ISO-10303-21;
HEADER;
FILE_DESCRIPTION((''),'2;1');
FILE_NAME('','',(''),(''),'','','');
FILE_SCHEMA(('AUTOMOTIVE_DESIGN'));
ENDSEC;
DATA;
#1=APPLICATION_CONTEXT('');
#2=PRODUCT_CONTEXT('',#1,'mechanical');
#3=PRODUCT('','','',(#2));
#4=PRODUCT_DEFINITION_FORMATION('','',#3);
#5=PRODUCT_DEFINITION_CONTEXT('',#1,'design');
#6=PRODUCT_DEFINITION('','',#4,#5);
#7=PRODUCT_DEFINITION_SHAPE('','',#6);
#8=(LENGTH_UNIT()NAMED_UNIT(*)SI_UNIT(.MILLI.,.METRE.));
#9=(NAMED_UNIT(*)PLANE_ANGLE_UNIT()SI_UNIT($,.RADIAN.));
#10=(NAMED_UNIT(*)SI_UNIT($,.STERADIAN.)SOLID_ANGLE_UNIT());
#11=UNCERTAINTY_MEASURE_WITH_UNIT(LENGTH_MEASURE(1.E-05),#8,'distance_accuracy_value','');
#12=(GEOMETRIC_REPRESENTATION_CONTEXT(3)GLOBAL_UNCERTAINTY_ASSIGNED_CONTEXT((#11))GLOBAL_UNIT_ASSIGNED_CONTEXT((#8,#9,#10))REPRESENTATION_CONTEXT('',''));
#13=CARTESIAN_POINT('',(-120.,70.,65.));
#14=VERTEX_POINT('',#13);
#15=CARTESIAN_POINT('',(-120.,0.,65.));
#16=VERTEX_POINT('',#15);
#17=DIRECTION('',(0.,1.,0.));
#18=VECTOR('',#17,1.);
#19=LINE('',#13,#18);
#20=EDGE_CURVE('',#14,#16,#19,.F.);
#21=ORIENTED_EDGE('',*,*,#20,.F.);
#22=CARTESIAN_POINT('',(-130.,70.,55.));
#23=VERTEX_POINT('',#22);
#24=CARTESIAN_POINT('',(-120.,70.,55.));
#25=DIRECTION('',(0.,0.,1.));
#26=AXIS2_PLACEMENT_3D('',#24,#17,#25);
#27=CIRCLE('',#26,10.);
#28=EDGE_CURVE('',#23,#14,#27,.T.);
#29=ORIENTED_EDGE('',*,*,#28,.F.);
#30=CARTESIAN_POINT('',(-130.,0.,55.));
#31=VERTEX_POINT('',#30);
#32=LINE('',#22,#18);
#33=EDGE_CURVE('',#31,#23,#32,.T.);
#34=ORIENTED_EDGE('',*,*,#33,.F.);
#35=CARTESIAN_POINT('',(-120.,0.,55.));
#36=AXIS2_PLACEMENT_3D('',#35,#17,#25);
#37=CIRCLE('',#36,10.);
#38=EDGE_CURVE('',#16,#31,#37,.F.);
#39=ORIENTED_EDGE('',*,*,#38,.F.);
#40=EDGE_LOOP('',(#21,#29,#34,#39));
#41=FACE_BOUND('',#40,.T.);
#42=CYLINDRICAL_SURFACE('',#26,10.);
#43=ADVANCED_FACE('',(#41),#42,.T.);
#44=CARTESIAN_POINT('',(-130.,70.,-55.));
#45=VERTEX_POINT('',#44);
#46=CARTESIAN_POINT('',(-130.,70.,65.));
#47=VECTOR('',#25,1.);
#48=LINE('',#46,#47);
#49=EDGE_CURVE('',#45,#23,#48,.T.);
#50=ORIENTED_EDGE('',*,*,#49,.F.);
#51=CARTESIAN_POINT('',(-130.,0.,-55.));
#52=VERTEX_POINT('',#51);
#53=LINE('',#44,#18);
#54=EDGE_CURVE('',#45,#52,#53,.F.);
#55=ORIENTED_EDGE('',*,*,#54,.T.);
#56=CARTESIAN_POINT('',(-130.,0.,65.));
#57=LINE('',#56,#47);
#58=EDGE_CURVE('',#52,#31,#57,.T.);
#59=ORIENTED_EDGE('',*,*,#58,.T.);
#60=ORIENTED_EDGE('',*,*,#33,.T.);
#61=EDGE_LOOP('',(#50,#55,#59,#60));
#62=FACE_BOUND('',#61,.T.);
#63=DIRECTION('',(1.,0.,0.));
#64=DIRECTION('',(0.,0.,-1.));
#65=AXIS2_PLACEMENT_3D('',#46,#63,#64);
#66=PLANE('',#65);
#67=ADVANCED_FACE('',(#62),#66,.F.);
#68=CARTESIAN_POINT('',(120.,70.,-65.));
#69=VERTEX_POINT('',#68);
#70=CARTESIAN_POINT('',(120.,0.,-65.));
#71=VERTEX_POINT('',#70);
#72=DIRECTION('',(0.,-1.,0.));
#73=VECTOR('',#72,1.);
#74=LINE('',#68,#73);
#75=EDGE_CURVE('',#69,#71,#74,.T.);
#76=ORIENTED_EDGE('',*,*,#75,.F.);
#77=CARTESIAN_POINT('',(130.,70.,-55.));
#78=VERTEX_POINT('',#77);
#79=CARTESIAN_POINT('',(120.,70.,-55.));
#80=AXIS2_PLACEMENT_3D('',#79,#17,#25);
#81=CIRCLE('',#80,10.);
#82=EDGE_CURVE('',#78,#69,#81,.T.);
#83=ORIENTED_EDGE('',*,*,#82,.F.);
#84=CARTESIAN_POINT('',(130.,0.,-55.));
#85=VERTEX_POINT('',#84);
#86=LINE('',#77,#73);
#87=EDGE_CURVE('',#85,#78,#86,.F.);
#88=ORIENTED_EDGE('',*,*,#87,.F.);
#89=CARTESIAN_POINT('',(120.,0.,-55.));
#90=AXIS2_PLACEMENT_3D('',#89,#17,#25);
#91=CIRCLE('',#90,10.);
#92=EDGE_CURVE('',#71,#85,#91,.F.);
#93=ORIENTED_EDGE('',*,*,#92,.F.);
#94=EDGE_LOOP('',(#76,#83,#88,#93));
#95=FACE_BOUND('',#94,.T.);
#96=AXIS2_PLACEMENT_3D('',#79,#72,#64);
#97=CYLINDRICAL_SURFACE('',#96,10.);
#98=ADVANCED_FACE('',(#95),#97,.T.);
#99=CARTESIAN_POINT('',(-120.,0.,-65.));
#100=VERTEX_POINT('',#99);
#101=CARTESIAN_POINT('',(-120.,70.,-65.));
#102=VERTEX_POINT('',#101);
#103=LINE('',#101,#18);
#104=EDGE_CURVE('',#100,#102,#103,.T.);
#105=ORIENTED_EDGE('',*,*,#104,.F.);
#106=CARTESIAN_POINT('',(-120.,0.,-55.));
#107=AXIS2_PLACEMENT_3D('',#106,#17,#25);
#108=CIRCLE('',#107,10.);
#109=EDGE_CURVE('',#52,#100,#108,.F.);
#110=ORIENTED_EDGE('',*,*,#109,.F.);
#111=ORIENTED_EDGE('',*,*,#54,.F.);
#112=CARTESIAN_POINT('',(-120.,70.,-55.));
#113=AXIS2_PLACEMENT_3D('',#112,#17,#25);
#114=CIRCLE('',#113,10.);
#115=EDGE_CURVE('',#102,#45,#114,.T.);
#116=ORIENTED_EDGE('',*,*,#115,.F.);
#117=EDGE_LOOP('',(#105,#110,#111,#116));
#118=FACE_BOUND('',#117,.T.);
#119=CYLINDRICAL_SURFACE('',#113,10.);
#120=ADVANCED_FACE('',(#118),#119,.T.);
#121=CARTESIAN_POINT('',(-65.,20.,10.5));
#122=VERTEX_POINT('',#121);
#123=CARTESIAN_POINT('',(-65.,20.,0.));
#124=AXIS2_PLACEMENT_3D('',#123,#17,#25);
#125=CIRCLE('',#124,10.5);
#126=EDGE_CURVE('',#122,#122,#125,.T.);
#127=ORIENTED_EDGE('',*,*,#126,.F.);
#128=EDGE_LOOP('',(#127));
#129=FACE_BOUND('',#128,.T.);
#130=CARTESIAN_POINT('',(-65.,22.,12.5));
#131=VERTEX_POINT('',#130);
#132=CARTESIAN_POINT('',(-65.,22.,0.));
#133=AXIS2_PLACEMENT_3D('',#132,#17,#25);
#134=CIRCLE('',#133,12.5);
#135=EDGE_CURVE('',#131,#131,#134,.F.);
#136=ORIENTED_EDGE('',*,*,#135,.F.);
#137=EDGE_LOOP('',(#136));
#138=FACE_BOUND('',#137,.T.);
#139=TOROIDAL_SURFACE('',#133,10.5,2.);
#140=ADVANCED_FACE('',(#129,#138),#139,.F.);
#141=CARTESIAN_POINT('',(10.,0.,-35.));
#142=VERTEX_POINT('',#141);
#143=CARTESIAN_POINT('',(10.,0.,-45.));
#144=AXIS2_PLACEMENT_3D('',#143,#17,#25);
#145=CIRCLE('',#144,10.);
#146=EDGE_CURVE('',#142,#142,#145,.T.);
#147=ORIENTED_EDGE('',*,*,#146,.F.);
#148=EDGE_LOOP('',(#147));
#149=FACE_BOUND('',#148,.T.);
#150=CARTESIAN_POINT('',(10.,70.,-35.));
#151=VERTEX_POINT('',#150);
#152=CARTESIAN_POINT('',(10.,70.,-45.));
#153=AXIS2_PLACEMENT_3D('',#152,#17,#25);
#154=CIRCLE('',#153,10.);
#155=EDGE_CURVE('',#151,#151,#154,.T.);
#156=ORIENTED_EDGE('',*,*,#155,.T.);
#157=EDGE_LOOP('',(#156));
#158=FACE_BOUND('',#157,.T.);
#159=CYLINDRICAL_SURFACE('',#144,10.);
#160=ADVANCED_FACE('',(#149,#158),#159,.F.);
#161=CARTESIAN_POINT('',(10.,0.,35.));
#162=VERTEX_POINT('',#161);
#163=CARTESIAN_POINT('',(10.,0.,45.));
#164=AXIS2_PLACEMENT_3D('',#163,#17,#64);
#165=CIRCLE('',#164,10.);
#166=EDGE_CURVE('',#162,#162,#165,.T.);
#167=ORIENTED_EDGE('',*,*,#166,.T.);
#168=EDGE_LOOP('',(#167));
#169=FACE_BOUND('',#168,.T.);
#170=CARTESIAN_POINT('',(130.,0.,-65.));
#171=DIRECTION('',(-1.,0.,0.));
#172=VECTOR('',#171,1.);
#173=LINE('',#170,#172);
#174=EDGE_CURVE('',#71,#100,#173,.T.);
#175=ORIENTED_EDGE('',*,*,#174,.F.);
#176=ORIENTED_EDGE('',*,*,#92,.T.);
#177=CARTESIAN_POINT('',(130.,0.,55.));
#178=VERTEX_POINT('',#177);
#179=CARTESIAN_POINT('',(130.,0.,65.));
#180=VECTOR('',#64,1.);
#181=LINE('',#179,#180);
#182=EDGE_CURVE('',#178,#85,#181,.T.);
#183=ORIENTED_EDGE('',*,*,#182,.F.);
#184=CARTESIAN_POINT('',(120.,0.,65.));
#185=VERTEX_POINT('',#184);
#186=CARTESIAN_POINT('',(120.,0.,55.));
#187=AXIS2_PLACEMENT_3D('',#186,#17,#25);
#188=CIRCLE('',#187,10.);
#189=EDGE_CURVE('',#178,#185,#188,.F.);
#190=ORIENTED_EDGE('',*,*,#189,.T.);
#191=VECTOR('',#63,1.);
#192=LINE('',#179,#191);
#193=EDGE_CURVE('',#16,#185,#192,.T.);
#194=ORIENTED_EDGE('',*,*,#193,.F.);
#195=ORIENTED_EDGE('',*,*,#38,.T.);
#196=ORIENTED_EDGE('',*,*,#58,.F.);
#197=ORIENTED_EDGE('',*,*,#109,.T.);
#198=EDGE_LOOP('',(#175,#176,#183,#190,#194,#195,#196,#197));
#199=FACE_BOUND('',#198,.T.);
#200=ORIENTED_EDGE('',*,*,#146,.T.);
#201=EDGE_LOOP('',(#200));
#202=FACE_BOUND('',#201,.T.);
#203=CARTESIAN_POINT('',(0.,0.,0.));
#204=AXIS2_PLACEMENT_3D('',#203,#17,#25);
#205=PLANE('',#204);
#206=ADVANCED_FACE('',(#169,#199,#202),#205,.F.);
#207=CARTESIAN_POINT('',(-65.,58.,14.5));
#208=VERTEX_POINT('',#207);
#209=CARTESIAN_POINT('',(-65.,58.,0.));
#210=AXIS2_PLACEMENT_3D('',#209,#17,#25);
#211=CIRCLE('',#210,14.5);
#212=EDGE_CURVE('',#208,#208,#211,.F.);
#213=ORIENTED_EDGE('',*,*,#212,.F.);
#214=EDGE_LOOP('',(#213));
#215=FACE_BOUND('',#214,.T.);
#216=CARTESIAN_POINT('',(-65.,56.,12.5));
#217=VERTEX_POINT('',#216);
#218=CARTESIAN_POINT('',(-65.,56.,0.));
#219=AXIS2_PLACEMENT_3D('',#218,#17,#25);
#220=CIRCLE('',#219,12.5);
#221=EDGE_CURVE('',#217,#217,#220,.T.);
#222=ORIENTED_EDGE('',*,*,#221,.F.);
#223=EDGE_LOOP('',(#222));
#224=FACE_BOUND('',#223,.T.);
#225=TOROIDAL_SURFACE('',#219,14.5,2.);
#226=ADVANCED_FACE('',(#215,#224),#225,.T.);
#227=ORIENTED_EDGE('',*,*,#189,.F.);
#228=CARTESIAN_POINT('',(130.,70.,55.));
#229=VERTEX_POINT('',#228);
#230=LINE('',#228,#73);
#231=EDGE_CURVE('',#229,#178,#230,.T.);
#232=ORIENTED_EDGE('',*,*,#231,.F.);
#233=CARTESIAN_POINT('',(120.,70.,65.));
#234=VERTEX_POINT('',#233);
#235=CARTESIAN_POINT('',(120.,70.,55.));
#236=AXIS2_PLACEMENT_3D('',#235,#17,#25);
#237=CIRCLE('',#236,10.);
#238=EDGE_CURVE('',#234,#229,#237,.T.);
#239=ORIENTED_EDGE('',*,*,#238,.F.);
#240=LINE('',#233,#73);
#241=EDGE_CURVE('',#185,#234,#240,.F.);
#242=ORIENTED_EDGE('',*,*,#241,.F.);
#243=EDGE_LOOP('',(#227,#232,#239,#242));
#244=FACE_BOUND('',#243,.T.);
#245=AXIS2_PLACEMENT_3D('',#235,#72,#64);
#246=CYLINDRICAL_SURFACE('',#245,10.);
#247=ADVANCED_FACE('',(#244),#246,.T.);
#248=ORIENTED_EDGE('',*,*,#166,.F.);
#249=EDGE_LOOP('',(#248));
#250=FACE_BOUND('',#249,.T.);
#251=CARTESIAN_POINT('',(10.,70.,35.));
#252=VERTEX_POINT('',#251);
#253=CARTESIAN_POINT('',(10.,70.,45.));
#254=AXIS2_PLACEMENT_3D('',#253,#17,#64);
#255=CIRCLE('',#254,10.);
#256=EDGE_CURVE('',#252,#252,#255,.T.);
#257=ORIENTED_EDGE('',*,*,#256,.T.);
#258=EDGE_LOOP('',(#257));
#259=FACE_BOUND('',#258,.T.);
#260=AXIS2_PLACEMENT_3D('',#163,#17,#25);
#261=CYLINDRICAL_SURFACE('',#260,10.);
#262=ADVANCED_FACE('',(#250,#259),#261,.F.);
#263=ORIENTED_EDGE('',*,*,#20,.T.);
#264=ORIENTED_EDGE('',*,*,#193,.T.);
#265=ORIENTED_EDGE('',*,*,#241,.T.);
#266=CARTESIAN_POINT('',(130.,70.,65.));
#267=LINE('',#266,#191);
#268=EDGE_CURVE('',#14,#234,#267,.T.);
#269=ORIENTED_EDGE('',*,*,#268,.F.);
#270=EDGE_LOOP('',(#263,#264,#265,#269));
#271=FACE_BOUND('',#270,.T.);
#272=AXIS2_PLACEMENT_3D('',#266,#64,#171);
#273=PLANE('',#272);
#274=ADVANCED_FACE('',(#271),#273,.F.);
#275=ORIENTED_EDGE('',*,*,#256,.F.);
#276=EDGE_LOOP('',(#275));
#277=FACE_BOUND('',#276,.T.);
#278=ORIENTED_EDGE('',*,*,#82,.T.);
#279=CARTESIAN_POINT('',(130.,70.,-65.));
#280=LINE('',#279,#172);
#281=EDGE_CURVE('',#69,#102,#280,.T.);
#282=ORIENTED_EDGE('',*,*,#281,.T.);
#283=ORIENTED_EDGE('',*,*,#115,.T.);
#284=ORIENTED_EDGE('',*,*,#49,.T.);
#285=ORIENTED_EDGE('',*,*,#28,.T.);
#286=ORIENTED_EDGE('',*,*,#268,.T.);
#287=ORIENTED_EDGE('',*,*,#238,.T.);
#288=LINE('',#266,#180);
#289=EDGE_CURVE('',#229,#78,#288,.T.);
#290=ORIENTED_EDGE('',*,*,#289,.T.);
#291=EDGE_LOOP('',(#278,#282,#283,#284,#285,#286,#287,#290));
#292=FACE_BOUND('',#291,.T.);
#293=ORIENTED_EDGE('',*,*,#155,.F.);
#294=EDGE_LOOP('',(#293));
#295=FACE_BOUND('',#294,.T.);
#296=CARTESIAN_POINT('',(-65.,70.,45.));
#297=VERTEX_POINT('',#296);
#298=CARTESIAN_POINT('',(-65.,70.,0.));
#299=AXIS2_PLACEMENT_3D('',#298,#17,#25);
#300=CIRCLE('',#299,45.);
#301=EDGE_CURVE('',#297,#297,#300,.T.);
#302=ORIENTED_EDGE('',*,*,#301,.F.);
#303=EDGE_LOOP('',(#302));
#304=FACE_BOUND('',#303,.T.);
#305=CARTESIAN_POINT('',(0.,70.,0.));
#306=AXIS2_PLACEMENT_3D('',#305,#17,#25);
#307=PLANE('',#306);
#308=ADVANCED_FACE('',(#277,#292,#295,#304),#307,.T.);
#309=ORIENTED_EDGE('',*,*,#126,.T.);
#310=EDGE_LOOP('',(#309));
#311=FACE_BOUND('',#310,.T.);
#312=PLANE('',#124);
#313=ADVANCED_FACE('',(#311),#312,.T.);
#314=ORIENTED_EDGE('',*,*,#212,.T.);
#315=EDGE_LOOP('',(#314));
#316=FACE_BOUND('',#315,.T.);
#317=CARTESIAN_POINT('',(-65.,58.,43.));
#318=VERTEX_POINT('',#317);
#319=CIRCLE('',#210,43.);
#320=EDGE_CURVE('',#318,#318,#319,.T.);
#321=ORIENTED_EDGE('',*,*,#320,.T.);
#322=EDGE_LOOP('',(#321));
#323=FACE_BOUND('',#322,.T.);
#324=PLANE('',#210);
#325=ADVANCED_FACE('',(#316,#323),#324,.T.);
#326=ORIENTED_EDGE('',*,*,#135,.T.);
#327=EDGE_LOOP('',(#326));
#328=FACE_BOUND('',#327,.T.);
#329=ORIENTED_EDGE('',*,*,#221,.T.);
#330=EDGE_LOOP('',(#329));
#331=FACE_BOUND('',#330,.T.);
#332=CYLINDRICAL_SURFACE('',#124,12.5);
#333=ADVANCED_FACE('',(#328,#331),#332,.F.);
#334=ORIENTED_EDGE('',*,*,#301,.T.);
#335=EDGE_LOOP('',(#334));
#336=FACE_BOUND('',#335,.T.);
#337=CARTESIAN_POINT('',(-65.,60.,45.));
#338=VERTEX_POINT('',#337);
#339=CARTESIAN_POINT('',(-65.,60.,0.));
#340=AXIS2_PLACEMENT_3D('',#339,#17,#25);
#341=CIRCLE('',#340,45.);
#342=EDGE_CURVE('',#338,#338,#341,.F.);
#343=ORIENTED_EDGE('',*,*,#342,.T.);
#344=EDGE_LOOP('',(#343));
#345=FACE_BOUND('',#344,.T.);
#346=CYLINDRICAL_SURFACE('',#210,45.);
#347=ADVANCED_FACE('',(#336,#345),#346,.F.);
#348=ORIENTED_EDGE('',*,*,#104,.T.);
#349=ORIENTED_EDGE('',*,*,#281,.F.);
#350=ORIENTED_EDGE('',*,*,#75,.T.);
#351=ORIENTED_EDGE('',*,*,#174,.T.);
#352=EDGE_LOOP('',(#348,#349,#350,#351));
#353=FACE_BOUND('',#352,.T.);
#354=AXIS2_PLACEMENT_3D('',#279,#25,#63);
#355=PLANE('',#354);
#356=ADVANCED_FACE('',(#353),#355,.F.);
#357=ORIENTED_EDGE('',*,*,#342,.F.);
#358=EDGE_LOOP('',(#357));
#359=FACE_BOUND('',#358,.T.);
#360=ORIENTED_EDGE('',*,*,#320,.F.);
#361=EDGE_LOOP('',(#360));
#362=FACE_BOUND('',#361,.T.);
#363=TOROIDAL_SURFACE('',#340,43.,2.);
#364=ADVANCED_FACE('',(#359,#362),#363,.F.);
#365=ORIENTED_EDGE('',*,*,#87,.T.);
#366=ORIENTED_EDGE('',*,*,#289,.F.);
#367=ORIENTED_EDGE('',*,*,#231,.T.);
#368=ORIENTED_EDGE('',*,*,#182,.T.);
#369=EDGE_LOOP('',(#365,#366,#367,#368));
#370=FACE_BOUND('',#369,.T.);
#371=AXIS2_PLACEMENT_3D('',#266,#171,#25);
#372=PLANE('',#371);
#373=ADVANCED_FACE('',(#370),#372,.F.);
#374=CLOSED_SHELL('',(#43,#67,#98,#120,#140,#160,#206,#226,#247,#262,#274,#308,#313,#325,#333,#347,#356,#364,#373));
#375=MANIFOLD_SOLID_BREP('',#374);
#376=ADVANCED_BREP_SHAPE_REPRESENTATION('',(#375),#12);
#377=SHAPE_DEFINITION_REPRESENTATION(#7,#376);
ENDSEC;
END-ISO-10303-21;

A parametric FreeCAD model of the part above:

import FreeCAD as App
import Part
import Sketcher


def edges_at(feature, points):
    """Names of the edges that pass closest to the given points."""
    edges = feature.Shape.Edges
    near = lambda p: min(range(len(edges)), key=lambda i: edges[i].distToShape(Part.Vertex(*p))[0])
    return sorted({f"Edge{near(p) + 1}" for p in points})

doc = App.newDocument("Part")
body = doc.addObject("PartDesign::Body", "Body")

sketch1 = body.newObject("Sketcher::SketchObject", "Sketch")
sketch1.AttachmentSupport = (doc.getObject("XZ_Plane"), [""])
sketch1.MapMode = "FlatFace"
sketch1.addGeometry([
    Part.LineSegment(App.Vector(-130, -65, 0), App.Vector(-130, 65, 0)),
    Part.LineSegment(App.Vector(-130, 65, 0), App.Vector(130, 65, 0)),
    Part.LineSegment(App.Vector(130, 65, 0), App.Vector(130, -65, 0)),
    Part.LineSegment(App.Vector(130, -65, 0), App.Vector(-130, -65, 0)),
], False)
sketch1.addConstraint([
    Sketcher.Constraint("Coincident", 0, 2, 1, 1),
    Sketcher.Constraint("Coincident", 1, 2, 2, 1),
    Sketcher.Constraint("Coincident", 2, 2, 3, 1),
    Sketcher.Constraint("Coincident", 3, 2, 0, 1),
    Sketcher.Constraint("Vertical", 0),
    Sketcher.Constraint("Horizontal", 1),
    Sketcher.Constraint("Vertical", 2),
    Sketcher.Constraint("Horizontal", 3),
    Sketcher.Constraint("Symmetric", 0, 2, 2, 2, -1, 1),
    Sketcher.Constraint("DistanceX", 1, 1, 1, 2, 260.0),
    Sketcher.Constraint("DistanceY", 0, 1, 0, 2, 130.0),
])
pad1 = body.newObject("PartDesign::Pad", "Pad")
pad1.Profile = sketch1
pad1.Length = 70
pad1.Reversed = True

sketch2 = body.newObject("Sketcher::SketchObject", "Sketch001")
sketch2.AttachmentSupport = (doc.getObject("XZ_Plane"), [""])
sketch2.MapMode = "FlatFace"
sketch2.AttachmentOffset = App.Placement(App.Vector(0, 0, -70), App.Rotation())
sketch2.addGeometry(Part.Circle(App.Vector(-65, 0, 0), App.Vector(0, 0, 1), 45), False)
sketch2.addConstraint([
    Sketcher.Constraint("PointOnObject", 0, 3, -1),
    Sketcher.Constraint("Diameter", 0, 90.0),
    Sketcher.Constraint("DistanceX", 0, 3, -1, 1, 65.0),
])
pocket1 = body.newObject("PartDesign::Pocket", "Pocket")
pocket1.Profile = sketch2
pocket1.Length = 12
pocket1.Reversed = True
doc.recompute()

fillet = body.newObject("PartDesign::Fillet", "Fillet")
fillet.Base = (pocket1, edges_at(pocket1, [(-110, 58, 0)]))
fillet.Radius = 2

sketch3 = body.newObject("Sketcher::SketchObject", "Sketch002")
sketch3.AttachmentSupport = (doc.getObject("XZ_Plane"), [""])
sketch3.MapMode = "FlatFace"
sketch3.AttachmentOffset = App.Placement(App.Vector(0, 0, -58), App.Rotation())
sketch3.addGeometry(Part.Circle(App.Vector(-65, 0, 0), App.Vector(0, 0, 1), 12), False)
sketch3.addConstraint([
    Sketcher.Constraint("PointOnObject", 0, 3, -1),
    Sketcher.Constraint("Diameter", 0, 25.0),
    Sketcher.Constraint("DistanceX", 0, 3, -1, 1, 65.0),
])
pocket2 = body.newObject("PartDesign::Pocket", "Pocket001")
pocket2.Profile = sketch3
pocket2.Length = 38
pocket2.Reversed = True
doc.recompute()

fillet2 = body.newObject("PartDesign::Fillet", "Fillet001")
fillet2.Base = (pocket2, edges_at(pocket2, [(-77.5, 58, 0)]))
fillet2.Radius = 2
doc.recompute()

fillet3 = body.newObject("PartDesign::Fillet", "Fillet002")
fillet3.Base = (fillet2, edges_at(fillet2, [(-77.5, 20, 0)]))
fillet3.Radius = 2
doc.recompute()

fillet4 = body.newObject("PartDesign::Fillet", "Fillet003")
fillet4.Base = (fillet3, edges_at(fillet3, [(-130, 35, -65)]))
fillet4.Radius = 10
doc.recompute()

fillet5 = body.newObject("PartDesign::Fillet", "Fillet004")
fillet5.Base = (fillet4, edges_at(fillet4, [(-130, 35, 65)]))
fillet5.Radius = 10
doc.recompute()

fillet6 = body.newObject("PartDesign::Fillet", "Fillet005")
fillet6.Base = (fillet5, edges_at(fillet5, [(130, 35, 65)]))
fillet6.Radius = 10
doc.recompute()

fillet7 = body.newObject("PartDesign::Fillet", "Fillet006")
fillet7.Base = (fillet6, edges_at(fillet6, [(130, 35, -65)]))
fillet7.Radius = 10

sketch4 = body.newObject("Sketcher::SketchObject", "Sketch003")
sketch4.AttachmentSupport = (doc.getObject("XZ_Plane"), [""])
sketch4.MapMode = "FlatFace"
sketch4.AttachmentOffset = App.Placement(App.Vector(0, 0, -70), App.Rotation())
sketch4.addGeometry([
    Part.Circle(App.Vector(10, -45, 0), App.Vector(0, 0, 1), 10),
    Part.Circle(App.Vector(10, 45, 0), App.Vector(0, 0, 1), 10),
], False)
sketch4.addConstraint([
    Sketcher.Constraint("Equal", 0, 1),
    Sketcher.Constraint("Symmetric", 0, 3, 1, 3, -1),
    Sketcher.Constraint("Diameter", 0, 20.0),
    Sketcher.Constraint("DistanceX", -1, 1, 0, 3, 10.0),
    Sketcher.Constraint("DistanceY", 0, 3, -1, 1, 45.0),
])
pocket3 = body.newObject("PartDesign::Pocket", "Pocket002")
pocket3.Profile = sketch4
pocket3.Type = "ThroughAll"
pocket3.Reversed = True

doc.recompute()
